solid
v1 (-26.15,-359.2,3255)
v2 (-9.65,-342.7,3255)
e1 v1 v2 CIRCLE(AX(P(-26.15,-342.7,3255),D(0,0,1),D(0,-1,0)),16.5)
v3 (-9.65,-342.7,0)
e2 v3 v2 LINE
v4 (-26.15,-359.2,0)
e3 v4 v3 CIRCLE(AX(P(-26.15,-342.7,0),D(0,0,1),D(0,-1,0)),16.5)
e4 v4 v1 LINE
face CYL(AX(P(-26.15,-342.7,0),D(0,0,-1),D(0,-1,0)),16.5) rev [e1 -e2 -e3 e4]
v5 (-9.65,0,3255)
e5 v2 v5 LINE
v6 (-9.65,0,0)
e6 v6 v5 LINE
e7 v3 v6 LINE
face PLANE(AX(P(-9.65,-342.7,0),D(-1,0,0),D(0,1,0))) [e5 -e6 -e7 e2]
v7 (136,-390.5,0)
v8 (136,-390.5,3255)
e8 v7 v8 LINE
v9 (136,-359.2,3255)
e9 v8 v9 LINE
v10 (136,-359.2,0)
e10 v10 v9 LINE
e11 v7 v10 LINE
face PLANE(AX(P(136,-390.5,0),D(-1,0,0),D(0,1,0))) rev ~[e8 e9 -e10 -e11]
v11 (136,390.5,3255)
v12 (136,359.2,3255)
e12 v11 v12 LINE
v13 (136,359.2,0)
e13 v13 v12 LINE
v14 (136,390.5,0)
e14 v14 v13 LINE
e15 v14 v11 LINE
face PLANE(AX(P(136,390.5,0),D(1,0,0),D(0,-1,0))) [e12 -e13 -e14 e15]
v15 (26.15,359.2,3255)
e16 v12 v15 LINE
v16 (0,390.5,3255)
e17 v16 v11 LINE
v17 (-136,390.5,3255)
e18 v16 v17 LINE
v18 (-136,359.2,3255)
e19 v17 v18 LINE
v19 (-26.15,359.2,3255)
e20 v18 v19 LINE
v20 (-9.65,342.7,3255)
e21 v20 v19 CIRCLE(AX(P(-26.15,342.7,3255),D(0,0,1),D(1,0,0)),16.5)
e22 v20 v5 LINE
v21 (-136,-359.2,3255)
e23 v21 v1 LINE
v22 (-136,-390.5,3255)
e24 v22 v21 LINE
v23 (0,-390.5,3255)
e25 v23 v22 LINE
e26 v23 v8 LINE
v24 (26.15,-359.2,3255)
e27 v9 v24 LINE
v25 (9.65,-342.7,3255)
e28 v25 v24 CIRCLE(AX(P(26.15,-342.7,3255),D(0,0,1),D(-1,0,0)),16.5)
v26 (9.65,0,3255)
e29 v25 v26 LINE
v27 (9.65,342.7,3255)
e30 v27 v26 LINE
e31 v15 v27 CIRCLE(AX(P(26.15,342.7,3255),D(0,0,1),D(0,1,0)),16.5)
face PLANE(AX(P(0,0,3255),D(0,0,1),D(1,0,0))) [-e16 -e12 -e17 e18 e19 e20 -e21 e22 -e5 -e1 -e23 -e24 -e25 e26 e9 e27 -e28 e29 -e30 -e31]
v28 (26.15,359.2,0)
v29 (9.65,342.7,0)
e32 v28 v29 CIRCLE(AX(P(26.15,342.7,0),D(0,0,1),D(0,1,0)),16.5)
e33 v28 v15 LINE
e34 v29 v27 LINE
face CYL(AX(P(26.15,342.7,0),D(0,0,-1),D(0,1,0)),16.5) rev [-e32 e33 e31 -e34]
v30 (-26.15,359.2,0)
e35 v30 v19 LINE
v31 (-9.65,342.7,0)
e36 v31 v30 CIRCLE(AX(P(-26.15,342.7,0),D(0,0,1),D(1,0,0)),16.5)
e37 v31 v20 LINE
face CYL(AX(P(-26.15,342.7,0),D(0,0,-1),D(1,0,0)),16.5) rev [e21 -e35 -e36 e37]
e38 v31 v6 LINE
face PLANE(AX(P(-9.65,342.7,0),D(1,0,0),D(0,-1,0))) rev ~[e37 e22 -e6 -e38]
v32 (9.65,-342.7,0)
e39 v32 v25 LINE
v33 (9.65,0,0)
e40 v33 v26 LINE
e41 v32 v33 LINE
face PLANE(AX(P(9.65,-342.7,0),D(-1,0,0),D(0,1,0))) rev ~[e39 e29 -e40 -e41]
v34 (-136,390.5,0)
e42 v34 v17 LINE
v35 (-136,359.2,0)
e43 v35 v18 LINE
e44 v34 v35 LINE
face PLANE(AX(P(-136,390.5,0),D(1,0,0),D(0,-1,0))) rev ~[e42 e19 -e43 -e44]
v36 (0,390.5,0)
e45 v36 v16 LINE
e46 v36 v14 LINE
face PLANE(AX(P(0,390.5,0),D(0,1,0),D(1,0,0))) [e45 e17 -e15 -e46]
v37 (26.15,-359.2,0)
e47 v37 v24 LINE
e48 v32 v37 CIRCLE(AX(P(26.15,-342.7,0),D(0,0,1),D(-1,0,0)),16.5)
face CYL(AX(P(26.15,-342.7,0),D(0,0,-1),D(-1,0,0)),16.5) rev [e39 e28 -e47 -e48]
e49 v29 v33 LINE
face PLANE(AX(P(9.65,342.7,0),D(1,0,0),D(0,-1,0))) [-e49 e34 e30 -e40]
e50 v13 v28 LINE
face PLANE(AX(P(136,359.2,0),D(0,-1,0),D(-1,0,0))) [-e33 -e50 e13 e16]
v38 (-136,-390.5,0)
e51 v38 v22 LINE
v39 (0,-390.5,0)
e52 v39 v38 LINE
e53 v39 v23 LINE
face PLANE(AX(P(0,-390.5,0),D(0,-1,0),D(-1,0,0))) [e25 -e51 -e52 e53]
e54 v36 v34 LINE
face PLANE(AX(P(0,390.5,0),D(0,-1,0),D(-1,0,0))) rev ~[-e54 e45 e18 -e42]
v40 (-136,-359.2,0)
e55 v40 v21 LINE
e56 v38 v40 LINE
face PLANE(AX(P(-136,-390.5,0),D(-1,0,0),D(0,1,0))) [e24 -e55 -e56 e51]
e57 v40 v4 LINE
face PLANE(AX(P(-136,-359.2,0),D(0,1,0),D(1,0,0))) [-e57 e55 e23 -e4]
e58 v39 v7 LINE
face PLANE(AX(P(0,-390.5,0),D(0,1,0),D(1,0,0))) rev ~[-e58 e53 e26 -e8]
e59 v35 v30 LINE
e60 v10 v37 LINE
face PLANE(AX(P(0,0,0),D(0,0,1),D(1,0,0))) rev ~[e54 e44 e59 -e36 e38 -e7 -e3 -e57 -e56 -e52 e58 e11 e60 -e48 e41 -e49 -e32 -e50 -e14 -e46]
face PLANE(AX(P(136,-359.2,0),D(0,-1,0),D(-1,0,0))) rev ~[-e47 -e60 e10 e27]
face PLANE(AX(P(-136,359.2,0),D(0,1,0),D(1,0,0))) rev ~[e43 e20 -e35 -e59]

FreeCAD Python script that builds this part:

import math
import FreeCAD as App
import Part
import Sketcher
from FreeCAD import Vector
Q = App.Units.Quantity

doc = App.newDocument("Part")
params = doc.addObject("Spreadsheet::Sheet", "Params")
for row, (alias, value) in enumerate([
    ("sketch1_radius", "16.5 mm"),
    ("sketch1_height", "31.3 mm"),
    ("pad1_length", "3255 mm"),
], start=1):
    params.set(f"A{row}", alias)
    params.set(f"B{row}", "=" + value)
    params.setAlias(f"B{row}", alias)

body = doc.addObject("PartDesign::Body", "Body")

# Sketch on XY plane
sketch1 = body.newObject("Sketcher::SketchObject", "Sketch")
sketch1.AttachmentSupport = (doc.getObject("XY_Plane"), [""])
sketch1.MapMode = "FlatFace"
sketch1.addGeometry([
    Part.LineSegment(Vector(-136, -359, 0), Vector(-136, -390, 0)),  # 0
    Part.LineSegment(Vector(-136, -390, 0), Vector(136, -390, 0)),  # 1
    Part.LineSegment(Vector(136, -390, 0), Vector(136, -359, 0)),  # 2
    Part.LineSegment(Vector(136, -359, 0), Vector(26, -359, 0)),  # 3
    Part.ArcOfCircle(Part.Circle(Vector(26, -343, 0), Vector(0, 0, 1), 16), math.radians(180), math.radians(270)),  # 4
    Part.LineSegment(Vector(10, -343, 0), Vector(10, 343, 0)),  # 5
    Part.ArcOfCircle(Part.Circle(Vector(26, 343, 0), Vector(0, 0, 1), 16), math.radians(90), math.radians(180)),  # 6
    Part.LineSegment(Vector(26, 359, 0), Vector(136, 359, 0)),  # 7
    Part.LineSegment(Vector(136, 359, 0), Vector(136, 390, 0)),  # 8
    Part.LineSegment(Vector(136, 390, 0), Vector(-136, 390, 0)),  # 9
    Part.LineSegment(Vector(-136, 390, 0), Vector(-136, 359, 0)),  # 10
    Part.LineSegment(Vector(-136, 359, 0), Vector(-26, 359, 0)),  # 11
    Part.ArcOfCircle(Part.Circle(Vector(-26, 343, 0), Vector(0, 0, 1), 16), math.radians(0), math.radians(90)),  # 12
    Part.LineSegment(Vector(-10, 343, 0), Vector(-10, -343, 0)),  # 13
    Part.ArcOfCircle(Part.Circle(Vector(-26, -343, 0), Vector(0, 0, 1), 16), math.radians(-90), math.radians(0)),  # 14
    Part.LineSegment(Vector(-26, -359, 0), Vector(-136, -359, 0)),  # 15
], False)
sketch1.addConstraint([
    Sketcher.Constraint("Coincident", 0, 2, 1, 1),
    Sketcher.Constraint("Coincident", 1, 2, 2, 1),
    Sketcher.Constraint("Coincident", 2, 2, 3, 1),
    Sketcher.Constraint("Tangent", 3, 2, 4, 2),
    Sketcher.Constraint("Tangent", 4, 1, 5, 1),
    Sketcher.Constraint("Tangent", 5, 2, 6, 2),
    Sketcher.Constraint("Tangent", 6, 1, 7, 1),
    Sketcher.Constraint("Coincident", 7, 2, 8, 1),
    Sketcher.Constraint("Coincident", 8, 2, 9, 1),
    Sketcher.Constraint("Coincident", 9, 2, 10, 1),
    Sketcher.Constraint("Coincident", 10, 2, 11, 1),
    Sketcher.Constraint("Tangent", 11, 2, 12, 2),
    Sketcher.Constraint("Tangent", 12, 1, 13, 1),
    Sketcher.Constraint("Tangent", 13, 2, 14, 2),
    Sketcher.Constraint("Tangent", 14, 1, 15, 1),
    Sketcher.Constraint("Coincident", 15, 2, 0, 1),
    Sketcher.Constraint("Vertical", 0),
    Sketcher.Constraint("Horizontal", 1),
    Sketcher.Constraint("Vertical", 2),
    Sketcher.Constraint("Horizontal", 3),
    Sketcher.Constraint("Vertical", 5),
    Sketcher.Constraint("Horizontal", 7),
    Sketcher.Constraint("Vertical", 8),
    Sketcher.Constraint("Horizontal", 9),
    Sketcher.Constraint("Vertical", 10),
    Sketcher.Constraint("Horizontal", 11),
    Sketcher.Constraint("Vertical", 13),
    Sketcher.Constraint("Horizontal", 15),
    Sketcher.Constraint("Equal", 4, 6),
    Sketcher.Constraint("Equal", 6, 12),
    Sketcher.Constraint("Equal", 12, 14),
    Sketcher.Constraint("Symmetric", 4, 3, 12, 3, -1, 1),
    Sketcher.Constraint("Symmetric", 0, 2, 8, 2, -1, 1),
    Sketcher.Constraint("Symmetric", 7, 2, 10, 2, -2),
    Sketcher.Constraint("Symmetric", 2, 2, 15, 2, -2),
    Sketcher.Constraint("Radius", 4, Q("16.5 mm")),
    Sketcher.Constraint("DistanceY", 0, 2, 0, 1, Q("31.3 mm")),
    Sketcher.Constraint("DistanceX", 0, 2, -1, 1, Q("136 mm")),
    Sketcher.Constraint("DistanceY", 0, 2, -1, 1, Q("390.5 mm")),
    Sketcher.Constraint("DistanceX", -1, 1, 4, 1, Q("9.65 mm")),
])
sketch1.setExpression("Constraints[35]", "Params.sketch1_radius")
sketch1.setExpression("Constraints[36]", "Params.sketch1_height")
pad1 = body.newObject("PartDesign::Pad", "Pad")
pad1.Profile = sketch1
pad1.setExpression("Length", "Params.pad1_length")

doc.recompute()
